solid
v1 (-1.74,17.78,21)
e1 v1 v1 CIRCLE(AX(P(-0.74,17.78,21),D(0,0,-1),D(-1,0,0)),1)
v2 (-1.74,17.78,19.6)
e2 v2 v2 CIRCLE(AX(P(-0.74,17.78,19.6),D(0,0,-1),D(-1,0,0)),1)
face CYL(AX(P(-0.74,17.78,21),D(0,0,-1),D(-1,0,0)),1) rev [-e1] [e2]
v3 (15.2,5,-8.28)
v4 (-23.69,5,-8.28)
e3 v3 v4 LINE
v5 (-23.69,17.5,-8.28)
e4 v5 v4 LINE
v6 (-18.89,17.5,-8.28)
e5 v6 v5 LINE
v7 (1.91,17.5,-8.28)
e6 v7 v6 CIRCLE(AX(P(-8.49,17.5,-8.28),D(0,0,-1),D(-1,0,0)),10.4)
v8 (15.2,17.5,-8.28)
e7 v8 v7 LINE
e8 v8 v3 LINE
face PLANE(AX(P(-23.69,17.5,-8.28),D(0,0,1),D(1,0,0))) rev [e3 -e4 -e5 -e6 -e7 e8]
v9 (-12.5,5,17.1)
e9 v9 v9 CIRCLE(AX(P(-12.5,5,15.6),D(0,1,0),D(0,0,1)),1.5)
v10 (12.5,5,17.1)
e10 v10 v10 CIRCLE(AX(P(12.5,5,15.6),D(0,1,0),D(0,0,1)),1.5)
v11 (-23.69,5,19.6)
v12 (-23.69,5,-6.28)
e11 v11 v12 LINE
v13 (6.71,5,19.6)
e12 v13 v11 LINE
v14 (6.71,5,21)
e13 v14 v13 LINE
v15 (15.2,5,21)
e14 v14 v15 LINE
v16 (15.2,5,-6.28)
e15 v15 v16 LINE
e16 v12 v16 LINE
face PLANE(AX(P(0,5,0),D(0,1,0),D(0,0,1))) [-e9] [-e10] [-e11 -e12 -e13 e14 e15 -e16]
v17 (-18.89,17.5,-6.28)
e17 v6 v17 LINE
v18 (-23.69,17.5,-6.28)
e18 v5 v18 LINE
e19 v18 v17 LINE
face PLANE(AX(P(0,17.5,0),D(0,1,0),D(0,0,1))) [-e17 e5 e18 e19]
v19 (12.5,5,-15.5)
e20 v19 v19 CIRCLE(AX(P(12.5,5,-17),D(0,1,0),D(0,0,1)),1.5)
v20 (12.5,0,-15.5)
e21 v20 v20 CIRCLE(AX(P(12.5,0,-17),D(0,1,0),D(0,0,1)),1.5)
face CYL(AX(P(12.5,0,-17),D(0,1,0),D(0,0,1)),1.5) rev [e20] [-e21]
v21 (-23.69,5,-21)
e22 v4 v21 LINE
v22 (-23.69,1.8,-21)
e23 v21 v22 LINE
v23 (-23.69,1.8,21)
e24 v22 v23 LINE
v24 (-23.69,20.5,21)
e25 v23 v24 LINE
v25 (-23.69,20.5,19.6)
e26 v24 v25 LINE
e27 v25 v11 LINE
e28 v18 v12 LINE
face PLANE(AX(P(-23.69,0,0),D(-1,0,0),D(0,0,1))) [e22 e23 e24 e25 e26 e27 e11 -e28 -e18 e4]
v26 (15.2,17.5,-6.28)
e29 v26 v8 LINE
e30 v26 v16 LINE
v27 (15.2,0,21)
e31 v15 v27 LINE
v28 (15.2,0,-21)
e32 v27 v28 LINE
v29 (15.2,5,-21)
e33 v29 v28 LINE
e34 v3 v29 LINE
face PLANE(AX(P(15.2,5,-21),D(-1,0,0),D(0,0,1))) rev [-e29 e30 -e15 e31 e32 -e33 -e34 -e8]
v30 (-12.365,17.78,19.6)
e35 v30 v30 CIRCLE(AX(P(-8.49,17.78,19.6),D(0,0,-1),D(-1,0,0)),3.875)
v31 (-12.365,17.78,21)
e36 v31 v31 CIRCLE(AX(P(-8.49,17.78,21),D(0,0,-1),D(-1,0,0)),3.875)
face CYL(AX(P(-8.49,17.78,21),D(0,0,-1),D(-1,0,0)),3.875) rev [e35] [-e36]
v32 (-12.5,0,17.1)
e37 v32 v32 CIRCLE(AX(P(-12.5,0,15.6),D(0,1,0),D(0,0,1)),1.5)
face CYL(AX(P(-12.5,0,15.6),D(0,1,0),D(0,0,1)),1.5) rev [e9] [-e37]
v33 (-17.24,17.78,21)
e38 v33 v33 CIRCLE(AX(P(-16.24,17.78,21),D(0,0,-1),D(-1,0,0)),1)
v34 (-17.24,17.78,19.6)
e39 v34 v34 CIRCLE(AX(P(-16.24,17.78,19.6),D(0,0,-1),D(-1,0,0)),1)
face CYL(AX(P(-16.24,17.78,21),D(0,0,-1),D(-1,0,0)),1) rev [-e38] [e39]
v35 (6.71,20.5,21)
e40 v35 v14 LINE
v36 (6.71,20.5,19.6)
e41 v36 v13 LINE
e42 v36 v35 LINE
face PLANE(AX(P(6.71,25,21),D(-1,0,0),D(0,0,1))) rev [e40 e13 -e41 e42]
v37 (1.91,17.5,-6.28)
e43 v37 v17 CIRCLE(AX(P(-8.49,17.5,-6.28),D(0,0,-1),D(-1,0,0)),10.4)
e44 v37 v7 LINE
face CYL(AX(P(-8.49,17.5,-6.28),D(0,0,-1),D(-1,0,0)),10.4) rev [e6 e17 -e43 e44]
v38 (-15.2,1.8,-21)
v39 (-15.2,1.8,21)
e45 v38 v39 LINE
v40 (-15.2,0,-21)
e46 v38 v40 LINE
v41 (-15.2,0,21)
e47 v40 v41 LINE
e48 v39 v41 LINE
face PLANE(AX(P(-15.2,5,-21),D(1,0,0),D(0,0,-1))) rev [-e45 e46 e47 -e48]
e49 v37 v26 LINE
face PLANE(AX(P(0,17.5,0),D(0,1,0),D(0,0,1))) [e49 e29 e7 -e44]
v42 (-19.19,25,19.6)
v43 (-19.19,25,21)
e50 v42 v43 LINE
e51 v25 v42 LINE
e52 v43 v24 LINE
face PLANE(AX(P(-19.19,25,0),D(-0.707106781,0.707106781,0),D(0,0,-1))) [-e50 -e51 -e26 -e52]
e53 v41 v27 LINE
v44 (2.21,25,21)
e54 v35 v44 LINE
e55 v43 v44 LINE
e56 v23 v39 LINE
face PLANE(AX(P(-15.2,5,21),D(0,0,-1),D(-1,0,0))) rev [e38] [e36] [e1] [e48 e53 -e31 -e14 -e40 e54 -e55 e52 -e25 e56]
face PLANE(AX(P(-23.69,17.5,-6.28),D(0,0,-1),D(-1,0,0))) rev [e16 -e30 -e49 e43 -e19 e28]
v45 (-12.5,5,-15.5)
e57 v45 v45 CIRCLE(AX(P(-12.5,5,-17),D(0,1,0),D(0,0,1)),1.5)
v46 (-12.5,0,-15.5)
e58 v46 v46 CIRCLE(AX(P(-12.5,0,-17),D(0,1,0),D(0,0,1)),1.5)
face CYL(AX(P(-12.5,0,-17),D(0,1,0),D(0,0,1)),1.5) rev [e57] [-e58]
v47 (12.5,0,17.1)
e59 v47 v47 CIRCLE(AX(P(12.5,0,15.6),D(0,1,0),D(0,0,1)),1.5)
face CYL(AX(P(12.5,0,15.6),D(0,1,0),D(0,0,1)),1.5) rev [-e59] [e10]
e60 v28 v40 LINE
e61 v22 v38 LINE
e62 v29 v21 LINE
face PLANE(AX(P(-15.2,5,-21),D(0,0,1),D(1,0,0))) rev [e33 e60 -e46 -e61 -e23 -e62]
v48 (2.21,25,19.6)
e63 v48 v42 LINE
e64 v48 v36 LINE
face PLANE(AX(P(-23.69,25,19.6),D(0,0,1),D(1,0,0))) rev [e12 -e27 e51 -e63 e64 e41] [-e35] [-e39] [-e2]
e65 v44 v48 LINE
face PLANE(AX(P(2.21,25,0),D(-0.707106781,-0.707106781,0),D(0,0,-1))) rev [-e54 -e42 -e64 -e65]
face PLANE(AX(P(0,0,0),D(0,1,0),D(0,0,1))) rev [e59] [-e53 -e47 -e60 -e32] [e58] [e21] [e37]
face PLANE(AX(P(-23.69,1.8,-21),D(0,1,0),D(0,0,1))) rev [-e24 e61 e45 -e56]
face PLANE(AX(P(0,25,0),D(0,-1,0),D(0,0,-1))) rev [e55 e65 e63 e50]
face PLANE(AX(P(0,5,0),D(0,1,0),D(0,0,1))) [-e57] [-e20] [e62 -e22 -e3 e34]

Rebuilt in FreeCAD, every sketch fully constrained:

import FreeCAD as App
import Part
import Sketcher

V = App.Vector


def edges_at(feature, points):
    """Names of the edges that pass closest to the given points."""
    edges = feature.Shape.Edges
    near = lambda p: min(range(len(edges)), key=lambda i: edges[i].distToShape(Part.Vertex(*p))[0])
    return sorted({f"Edge{near(p) + 1}" for p in points})

doc = App.newDocument("Part")
body = doc.addObject("PartDesign::Body", "Body")

sketch1 = body.newObject("Sketcher::SketchObject", "Sketch")
sketch1.AttachmentSupport = (doc.getObject("XZ_Plane"), [""])
sketch1.MapMode = "FlatFace"
sketch1.addGeometry([
    Part.LineSegment(V(-15.2, -21, 0), V(-15.2, 21, 0)),
    Part.LineSegment(V(-15.2, 21, 0), V(15.2, 21, 0)),
    Part.LineSegment(V(15.2, 21, 0), V(15.2, -21, 0)),
    Part.LineSegment(V(15.2, -21, 0), V(-15.2, -21, 0)),
], False)
sketch1.addConstraint([
    Sketcher.Constraint("Coincident", 0, 2, 1, 1),
    Sketcher.Constraint("Coincident", 1, 2, 2, 1),
    Sketcher.Constraint("Coincident", 2, 2, 3, 1),
    Sketcher.Constraint("Coincident", 3, 2, 0, 1),
    Sketcher.Constraint("Vertical", 0),
    Sketcher.Constraint("Horizontal", 1),
    Sketcher.Constraint("Vertical", 2),
    Sketcher.Constraint("Horizontal", 3),
    Sketcher.Constraint("Symmetric", 0, 2, 2, 2, -1, 1),
    Sketcher.Constraint("DistanceY", 0, 1, 0, 2, 42.0),
    Sketcher.Constraint("DistanceX", 1, 1, 1, 2, 30.4),
])
pad1 = body.newObject("PartDesign::Pad", "Pad")
pad1.Profile = sketch1
pad1.Length = 5
pad1.Reversed = True

sketch2 = body.newObject("Sketcher::SketchObject", "Sketch001")
sketch2.AttachmentSupport = (doc.getObject("YZ_Plane"), [""])
sketch2.MapMode = "FlatFace"
sketch2.AttachmentOffset = App.Placement(V(0, 0, -15.2), App.Rotation())
sketch2.addGeometry([
    Part.LineSegment(V(5, -21, 0), V(1.8, -21, 0)),
    Part.LineSegment(V(1.8, -21, 0), V(1.8, 21, 0)),
    Part.LineSegment(V(1.8, 21, 0), V(5, 21, 0)),
    Part.LineSegment(V(5, 21, 0), V(5, -21, 0)),
], False)
sketch2.addConstraint([
    Sketcher.Constraint("Coincident", 0, 2, 1, 1),
    Sketcher.Constraint("Coincident", 1, 2, 2, 1),
    Sketcher.Constraint("Coincident", 2, 2, 3, 1),
    Sketcher.Constraint("Coincident", 3, 2, 0, 1),
    Sketcher.Constraint("Horizontal", 0),
    Sketcher.Constraint("Vertical", 1),
    Sketcher.Constraint("Horizontal", 2),
    Sketcher.Constraint("Vertical", 3),
    Sketcher.Constraint("DistanceY", 1, 1, 1, 2, 42.0),
    Sketcher.Constraint("DistanceX", 0, 2, 0, 1, 3.2),
    Sketcher.Constraint("DistanceY", 0, 2, -1, 1, 21.0),
    Sketcher.Constraint("DistanceX", -1, 1, 2, 2, 5.0),
])
pad2 = body.newObject("PartDesign::Pad", "Pad001")
pad2.Profile = sketch2
pad2.Length = 8.49
pad2.Reversed = True

sketch3 = body.newObject("Sketcher::SketchObject", "Sketch002")
sketch3.AttachmentSupport = (doc.getObject("XZ_Plane"), [""])
sketch3.MapMode = "FlatFace"
sketch3.AttachmentOffset = App.Placement(V(0, 0, -5), App.Rotation())
sketch3.addGeometry([
    Part.LineSegment(V(-23.69, 19.6, 0), V(-23.69, 21, 0)),
    Part.LineSegment(V(-23.69, 21, 0), V(6.71, 21, 0)),
    Part.LineSegment(V(6.71, 21, 0), V(6.71, 19.6, 0)),
    Part.LineSegment(V(6.71, 19.6, 0), V(-23.69, 19.6, 0)),
], False)
sketch3.addConstraint([
    Sketcher.Constraint("Coincident", 0, 2, 1, 1),
    Sketcher.Constraint("Coincident", 1, 2, 2, 1),
    Sketcher.Constraint("Coincident", 2, 2, 3, 1),
    Sketcher.Constraint("Coincident", 3, 2, 0, 1),
    Sketcher.Constraint("Vertical", 0),
    Sketcher.Constraint("Horizontal", 1),
    Sketcher.Constraint("Vertical", 2),
    Sketcher.Constraint("Horizontal", 3),
    Sketcher.Constraint("DistanceX", 1, 1, 1, 2, 30.4),
    Sketcher.Constraint("DistanceY", 0, 1, 0, 2, 1.4),
    Sketcher.Constraint("DistanceY", -1, 1, 0, 2, 21.0),
    Sketcher.Constraint("DistanceX", 0, 2, -1, 1, 23.69),
])
pad3 = body.newObject("PartDesign::Pad", "Pad002")
pad3.Profile = sketch3
pad3.Length = 20
pad3.Reversed = True

sketch4 = body.newObject("Sketcher::SketchObject", "Sketch003")
sketch4.AttachmentSupport = (doc.getObject("XY_Plane"), [""])
sketch4.MapMode = "FlatFace"
sketch4.AttachmentOffset = App.Placement(V(0, 0, 19.6), App.Rotation())
sketch4.addGeometry([
    Part.Circle(V(-8.49, 17.78, 0), V(0, 0, 1), 3.875),
    Part.Circle(V(-0.74, 17.78, 0), V(0, 0, 1), 1),
    Part.Circle(V(-16.24, 17.78, 0), V(0, 0, 1), 1),
], False)
sketch4.addConstraint([
    Sketcher.Constraint("Equal", 1, 2),
    Sketcher.Constraint("Horizontal", 0, 3, 1, 3),
    Sketcher.Constraint("Horizontal", 1, 3, 2, 3),
    Sketcher.Constraint("Diameter", 1, 2.0),
    Sketcher.Constraint("Diameter", 0, 7.75),
    Sketcher.Constraint("DistanceX", 2, 3, 1, 3, 15.5),
    Sketcher.Constraint("DistanceX", 0, 3, -1, 1, 8.49),
    Sketcher.Constraint("DistanceY", -1, 1, 0, 3, 17.78),
    Sketcher.Constraint("DistanceX", 1, 3, -1, 1, 0.74),
])
pocket1 = body.newObject("PartDesign::Pocket", "Pocket")
pocket1.Profile = sketch4
pocket1.Length = 1.4
pocket1.Reversed = True
doc.recompute()

chamfer = body.newObject("PartDesign::Chamfer", "Chamfer")
chamfer.Base = (pocket1, edges_at(pocket1, [(-23.69, 25, 20.3), (6.71, 25, 20.3)]))
chamfer.Size = 4.5

sketch5 = body.newObject("Sketcher::SketchObject", "Sketch004")
sketch5.AttachmentSupport = (doc.getObject("XZ_Plane"), [""])
sketch5.MapMode = "FlatFace"
sketch5.AttachmentOffset = App.Placement(V(0, 0, -5), App.Rotation())
sketch5.addGeometry([
    Part.Circle(V(12.5, 15.6, 0), V(0, 0, 1), 1.5),
    Part.Circle(V(12.5, -17, 0), V(0, 0, 1), 1.5),
    Part.Circle(V(-12.5, -17, 0), V(0, 0, 1), 1.5),
    Part.Circle(V(-12.5, 15.6, 0), V(0, 0, 1), 1.5),
], False)
sketch5.addConstraint([
    Sketcher.Constraint("Equal", 0, 1),
    Sketcher.Constraint("Equal", 1, 2),
    Sketcher.Constraint("Equal", 2, 3),
    Sketcher.Constraint("Symmetric", 1, 3, 2, 3, -2),
    Sketcher.Constraint("Symmetric", 0, 3, 3, 3, -2),
    Sketcher.Constraint("Vertical", 0, 3, 1, 3),
    Sketcher.Constraint("Diameter", 0, 3.0),
    Sketcher.Constraint("DistanceY", 1, 3, -1, 1, 17.0),
    Sketcher.Constraint("DistanceX", 2, 3, 1, 3, 25.0),
    Sketcher.Constraint("DistanceY", -1, 1, 0, 3, 15.6),
])
pocket2 = body.newObject("PartDesign::Pocket", "Pocket001")
pocket2.Profile = sketch5
pocket2.Length = 5
pocket2.Reversed = True

sketch6 = body.newObject("Sketcher::SketchObject", "Sketch005")
sketch6.AttachmentSupport = (doc.getObject("XZ_Plane"), [""])
sketch6.MapMode = "FlatFace"
sketch6.AttachmentOffset = App.Placement(V(0, 0, -5), App.Rotation())
sketch6.addGeometry([
    Part.LineSegment(V(-23.69, -8.28, 0), V(-23.69, -6.28, 0)),
    Part.LineSegment(V(-23.69, -6.28, 0), V(15.2, -6.28, 0)),
    Part.LineSegment(V(15.2, -6.28, 0), V(15.2, -8.28, 0)),
    Part.LineSegment(V(15.2, -8.28, 0), V(-23.69, -8.28, 0)),
], False)
sketch6.addConstraint([
    Sketcher.Constraint("Coincident", 0, 2, 1, 1),
    Sketcher.Constraint("Coincident", 1, 2, 2, 1),
    Sketcher.Constraint("Coincident", 2, 2, 3, 1),
    Sketcher.Constraint("Coincident", 3, 2, 0, 1),
    Sketcher.Constraint("Vertical", 0),
    Sketcher.Constraint("Horizontal", 1),
    Sketcher.Constraint("Vertical", 2),
    Sketcher.Constraint("Horizontal", 3),
    Sketcher.Constraint("DistanceY", 0, 1, 0, 2, 2.0),
    Sketcher.Constraint("DistanceX", 1, 1, 1, 2, 38.89),
    Sketcher.Constraint("DistanceX", -1, 1, 1, 2, 15.2),
    Sketcher.Constraint("DistanceY", 0, 2, -1, 1, 6.28),
])
pad4 = body.newObject("PartDesign::Pad", "Pad003")
pad4.Profile = sketch6
pad4.Length = 12.5
pad4.Reversed = True

sketch7 = body.newObject("Sketcher::SketchObject", "Sketch006")
sketch7.AttachmentSupport = (doc.getObject("XY_Plane"), [""])
sketch7.MapMode = "FlatFace"
sketch7.AttachmentOffset = App.Placement(V(0, 0, -8.28), App.Rotation())
sketch7.addGeometry(Part.Circle(V(-8.49, 17.5, 0), V(0, 0, 1), 10.4), False)
sketch7.addConstraint([
    Sketcher.Constraint("Diameter", 0, 20.8),
    Sketcher.Constraint("DistanceY", -1, 1, 0, 3, 17.5),
    Sketcher.Constraint("DistanceX", 0, 3, -1, 1, 8.49),
])
pocket3 = body.newObject("PartDesign::Pocket", "Pocket002")
pocket3.Profile = sketch7
pocket3.Length = 2
pocket3.Reversed = True

doc.recompute()
